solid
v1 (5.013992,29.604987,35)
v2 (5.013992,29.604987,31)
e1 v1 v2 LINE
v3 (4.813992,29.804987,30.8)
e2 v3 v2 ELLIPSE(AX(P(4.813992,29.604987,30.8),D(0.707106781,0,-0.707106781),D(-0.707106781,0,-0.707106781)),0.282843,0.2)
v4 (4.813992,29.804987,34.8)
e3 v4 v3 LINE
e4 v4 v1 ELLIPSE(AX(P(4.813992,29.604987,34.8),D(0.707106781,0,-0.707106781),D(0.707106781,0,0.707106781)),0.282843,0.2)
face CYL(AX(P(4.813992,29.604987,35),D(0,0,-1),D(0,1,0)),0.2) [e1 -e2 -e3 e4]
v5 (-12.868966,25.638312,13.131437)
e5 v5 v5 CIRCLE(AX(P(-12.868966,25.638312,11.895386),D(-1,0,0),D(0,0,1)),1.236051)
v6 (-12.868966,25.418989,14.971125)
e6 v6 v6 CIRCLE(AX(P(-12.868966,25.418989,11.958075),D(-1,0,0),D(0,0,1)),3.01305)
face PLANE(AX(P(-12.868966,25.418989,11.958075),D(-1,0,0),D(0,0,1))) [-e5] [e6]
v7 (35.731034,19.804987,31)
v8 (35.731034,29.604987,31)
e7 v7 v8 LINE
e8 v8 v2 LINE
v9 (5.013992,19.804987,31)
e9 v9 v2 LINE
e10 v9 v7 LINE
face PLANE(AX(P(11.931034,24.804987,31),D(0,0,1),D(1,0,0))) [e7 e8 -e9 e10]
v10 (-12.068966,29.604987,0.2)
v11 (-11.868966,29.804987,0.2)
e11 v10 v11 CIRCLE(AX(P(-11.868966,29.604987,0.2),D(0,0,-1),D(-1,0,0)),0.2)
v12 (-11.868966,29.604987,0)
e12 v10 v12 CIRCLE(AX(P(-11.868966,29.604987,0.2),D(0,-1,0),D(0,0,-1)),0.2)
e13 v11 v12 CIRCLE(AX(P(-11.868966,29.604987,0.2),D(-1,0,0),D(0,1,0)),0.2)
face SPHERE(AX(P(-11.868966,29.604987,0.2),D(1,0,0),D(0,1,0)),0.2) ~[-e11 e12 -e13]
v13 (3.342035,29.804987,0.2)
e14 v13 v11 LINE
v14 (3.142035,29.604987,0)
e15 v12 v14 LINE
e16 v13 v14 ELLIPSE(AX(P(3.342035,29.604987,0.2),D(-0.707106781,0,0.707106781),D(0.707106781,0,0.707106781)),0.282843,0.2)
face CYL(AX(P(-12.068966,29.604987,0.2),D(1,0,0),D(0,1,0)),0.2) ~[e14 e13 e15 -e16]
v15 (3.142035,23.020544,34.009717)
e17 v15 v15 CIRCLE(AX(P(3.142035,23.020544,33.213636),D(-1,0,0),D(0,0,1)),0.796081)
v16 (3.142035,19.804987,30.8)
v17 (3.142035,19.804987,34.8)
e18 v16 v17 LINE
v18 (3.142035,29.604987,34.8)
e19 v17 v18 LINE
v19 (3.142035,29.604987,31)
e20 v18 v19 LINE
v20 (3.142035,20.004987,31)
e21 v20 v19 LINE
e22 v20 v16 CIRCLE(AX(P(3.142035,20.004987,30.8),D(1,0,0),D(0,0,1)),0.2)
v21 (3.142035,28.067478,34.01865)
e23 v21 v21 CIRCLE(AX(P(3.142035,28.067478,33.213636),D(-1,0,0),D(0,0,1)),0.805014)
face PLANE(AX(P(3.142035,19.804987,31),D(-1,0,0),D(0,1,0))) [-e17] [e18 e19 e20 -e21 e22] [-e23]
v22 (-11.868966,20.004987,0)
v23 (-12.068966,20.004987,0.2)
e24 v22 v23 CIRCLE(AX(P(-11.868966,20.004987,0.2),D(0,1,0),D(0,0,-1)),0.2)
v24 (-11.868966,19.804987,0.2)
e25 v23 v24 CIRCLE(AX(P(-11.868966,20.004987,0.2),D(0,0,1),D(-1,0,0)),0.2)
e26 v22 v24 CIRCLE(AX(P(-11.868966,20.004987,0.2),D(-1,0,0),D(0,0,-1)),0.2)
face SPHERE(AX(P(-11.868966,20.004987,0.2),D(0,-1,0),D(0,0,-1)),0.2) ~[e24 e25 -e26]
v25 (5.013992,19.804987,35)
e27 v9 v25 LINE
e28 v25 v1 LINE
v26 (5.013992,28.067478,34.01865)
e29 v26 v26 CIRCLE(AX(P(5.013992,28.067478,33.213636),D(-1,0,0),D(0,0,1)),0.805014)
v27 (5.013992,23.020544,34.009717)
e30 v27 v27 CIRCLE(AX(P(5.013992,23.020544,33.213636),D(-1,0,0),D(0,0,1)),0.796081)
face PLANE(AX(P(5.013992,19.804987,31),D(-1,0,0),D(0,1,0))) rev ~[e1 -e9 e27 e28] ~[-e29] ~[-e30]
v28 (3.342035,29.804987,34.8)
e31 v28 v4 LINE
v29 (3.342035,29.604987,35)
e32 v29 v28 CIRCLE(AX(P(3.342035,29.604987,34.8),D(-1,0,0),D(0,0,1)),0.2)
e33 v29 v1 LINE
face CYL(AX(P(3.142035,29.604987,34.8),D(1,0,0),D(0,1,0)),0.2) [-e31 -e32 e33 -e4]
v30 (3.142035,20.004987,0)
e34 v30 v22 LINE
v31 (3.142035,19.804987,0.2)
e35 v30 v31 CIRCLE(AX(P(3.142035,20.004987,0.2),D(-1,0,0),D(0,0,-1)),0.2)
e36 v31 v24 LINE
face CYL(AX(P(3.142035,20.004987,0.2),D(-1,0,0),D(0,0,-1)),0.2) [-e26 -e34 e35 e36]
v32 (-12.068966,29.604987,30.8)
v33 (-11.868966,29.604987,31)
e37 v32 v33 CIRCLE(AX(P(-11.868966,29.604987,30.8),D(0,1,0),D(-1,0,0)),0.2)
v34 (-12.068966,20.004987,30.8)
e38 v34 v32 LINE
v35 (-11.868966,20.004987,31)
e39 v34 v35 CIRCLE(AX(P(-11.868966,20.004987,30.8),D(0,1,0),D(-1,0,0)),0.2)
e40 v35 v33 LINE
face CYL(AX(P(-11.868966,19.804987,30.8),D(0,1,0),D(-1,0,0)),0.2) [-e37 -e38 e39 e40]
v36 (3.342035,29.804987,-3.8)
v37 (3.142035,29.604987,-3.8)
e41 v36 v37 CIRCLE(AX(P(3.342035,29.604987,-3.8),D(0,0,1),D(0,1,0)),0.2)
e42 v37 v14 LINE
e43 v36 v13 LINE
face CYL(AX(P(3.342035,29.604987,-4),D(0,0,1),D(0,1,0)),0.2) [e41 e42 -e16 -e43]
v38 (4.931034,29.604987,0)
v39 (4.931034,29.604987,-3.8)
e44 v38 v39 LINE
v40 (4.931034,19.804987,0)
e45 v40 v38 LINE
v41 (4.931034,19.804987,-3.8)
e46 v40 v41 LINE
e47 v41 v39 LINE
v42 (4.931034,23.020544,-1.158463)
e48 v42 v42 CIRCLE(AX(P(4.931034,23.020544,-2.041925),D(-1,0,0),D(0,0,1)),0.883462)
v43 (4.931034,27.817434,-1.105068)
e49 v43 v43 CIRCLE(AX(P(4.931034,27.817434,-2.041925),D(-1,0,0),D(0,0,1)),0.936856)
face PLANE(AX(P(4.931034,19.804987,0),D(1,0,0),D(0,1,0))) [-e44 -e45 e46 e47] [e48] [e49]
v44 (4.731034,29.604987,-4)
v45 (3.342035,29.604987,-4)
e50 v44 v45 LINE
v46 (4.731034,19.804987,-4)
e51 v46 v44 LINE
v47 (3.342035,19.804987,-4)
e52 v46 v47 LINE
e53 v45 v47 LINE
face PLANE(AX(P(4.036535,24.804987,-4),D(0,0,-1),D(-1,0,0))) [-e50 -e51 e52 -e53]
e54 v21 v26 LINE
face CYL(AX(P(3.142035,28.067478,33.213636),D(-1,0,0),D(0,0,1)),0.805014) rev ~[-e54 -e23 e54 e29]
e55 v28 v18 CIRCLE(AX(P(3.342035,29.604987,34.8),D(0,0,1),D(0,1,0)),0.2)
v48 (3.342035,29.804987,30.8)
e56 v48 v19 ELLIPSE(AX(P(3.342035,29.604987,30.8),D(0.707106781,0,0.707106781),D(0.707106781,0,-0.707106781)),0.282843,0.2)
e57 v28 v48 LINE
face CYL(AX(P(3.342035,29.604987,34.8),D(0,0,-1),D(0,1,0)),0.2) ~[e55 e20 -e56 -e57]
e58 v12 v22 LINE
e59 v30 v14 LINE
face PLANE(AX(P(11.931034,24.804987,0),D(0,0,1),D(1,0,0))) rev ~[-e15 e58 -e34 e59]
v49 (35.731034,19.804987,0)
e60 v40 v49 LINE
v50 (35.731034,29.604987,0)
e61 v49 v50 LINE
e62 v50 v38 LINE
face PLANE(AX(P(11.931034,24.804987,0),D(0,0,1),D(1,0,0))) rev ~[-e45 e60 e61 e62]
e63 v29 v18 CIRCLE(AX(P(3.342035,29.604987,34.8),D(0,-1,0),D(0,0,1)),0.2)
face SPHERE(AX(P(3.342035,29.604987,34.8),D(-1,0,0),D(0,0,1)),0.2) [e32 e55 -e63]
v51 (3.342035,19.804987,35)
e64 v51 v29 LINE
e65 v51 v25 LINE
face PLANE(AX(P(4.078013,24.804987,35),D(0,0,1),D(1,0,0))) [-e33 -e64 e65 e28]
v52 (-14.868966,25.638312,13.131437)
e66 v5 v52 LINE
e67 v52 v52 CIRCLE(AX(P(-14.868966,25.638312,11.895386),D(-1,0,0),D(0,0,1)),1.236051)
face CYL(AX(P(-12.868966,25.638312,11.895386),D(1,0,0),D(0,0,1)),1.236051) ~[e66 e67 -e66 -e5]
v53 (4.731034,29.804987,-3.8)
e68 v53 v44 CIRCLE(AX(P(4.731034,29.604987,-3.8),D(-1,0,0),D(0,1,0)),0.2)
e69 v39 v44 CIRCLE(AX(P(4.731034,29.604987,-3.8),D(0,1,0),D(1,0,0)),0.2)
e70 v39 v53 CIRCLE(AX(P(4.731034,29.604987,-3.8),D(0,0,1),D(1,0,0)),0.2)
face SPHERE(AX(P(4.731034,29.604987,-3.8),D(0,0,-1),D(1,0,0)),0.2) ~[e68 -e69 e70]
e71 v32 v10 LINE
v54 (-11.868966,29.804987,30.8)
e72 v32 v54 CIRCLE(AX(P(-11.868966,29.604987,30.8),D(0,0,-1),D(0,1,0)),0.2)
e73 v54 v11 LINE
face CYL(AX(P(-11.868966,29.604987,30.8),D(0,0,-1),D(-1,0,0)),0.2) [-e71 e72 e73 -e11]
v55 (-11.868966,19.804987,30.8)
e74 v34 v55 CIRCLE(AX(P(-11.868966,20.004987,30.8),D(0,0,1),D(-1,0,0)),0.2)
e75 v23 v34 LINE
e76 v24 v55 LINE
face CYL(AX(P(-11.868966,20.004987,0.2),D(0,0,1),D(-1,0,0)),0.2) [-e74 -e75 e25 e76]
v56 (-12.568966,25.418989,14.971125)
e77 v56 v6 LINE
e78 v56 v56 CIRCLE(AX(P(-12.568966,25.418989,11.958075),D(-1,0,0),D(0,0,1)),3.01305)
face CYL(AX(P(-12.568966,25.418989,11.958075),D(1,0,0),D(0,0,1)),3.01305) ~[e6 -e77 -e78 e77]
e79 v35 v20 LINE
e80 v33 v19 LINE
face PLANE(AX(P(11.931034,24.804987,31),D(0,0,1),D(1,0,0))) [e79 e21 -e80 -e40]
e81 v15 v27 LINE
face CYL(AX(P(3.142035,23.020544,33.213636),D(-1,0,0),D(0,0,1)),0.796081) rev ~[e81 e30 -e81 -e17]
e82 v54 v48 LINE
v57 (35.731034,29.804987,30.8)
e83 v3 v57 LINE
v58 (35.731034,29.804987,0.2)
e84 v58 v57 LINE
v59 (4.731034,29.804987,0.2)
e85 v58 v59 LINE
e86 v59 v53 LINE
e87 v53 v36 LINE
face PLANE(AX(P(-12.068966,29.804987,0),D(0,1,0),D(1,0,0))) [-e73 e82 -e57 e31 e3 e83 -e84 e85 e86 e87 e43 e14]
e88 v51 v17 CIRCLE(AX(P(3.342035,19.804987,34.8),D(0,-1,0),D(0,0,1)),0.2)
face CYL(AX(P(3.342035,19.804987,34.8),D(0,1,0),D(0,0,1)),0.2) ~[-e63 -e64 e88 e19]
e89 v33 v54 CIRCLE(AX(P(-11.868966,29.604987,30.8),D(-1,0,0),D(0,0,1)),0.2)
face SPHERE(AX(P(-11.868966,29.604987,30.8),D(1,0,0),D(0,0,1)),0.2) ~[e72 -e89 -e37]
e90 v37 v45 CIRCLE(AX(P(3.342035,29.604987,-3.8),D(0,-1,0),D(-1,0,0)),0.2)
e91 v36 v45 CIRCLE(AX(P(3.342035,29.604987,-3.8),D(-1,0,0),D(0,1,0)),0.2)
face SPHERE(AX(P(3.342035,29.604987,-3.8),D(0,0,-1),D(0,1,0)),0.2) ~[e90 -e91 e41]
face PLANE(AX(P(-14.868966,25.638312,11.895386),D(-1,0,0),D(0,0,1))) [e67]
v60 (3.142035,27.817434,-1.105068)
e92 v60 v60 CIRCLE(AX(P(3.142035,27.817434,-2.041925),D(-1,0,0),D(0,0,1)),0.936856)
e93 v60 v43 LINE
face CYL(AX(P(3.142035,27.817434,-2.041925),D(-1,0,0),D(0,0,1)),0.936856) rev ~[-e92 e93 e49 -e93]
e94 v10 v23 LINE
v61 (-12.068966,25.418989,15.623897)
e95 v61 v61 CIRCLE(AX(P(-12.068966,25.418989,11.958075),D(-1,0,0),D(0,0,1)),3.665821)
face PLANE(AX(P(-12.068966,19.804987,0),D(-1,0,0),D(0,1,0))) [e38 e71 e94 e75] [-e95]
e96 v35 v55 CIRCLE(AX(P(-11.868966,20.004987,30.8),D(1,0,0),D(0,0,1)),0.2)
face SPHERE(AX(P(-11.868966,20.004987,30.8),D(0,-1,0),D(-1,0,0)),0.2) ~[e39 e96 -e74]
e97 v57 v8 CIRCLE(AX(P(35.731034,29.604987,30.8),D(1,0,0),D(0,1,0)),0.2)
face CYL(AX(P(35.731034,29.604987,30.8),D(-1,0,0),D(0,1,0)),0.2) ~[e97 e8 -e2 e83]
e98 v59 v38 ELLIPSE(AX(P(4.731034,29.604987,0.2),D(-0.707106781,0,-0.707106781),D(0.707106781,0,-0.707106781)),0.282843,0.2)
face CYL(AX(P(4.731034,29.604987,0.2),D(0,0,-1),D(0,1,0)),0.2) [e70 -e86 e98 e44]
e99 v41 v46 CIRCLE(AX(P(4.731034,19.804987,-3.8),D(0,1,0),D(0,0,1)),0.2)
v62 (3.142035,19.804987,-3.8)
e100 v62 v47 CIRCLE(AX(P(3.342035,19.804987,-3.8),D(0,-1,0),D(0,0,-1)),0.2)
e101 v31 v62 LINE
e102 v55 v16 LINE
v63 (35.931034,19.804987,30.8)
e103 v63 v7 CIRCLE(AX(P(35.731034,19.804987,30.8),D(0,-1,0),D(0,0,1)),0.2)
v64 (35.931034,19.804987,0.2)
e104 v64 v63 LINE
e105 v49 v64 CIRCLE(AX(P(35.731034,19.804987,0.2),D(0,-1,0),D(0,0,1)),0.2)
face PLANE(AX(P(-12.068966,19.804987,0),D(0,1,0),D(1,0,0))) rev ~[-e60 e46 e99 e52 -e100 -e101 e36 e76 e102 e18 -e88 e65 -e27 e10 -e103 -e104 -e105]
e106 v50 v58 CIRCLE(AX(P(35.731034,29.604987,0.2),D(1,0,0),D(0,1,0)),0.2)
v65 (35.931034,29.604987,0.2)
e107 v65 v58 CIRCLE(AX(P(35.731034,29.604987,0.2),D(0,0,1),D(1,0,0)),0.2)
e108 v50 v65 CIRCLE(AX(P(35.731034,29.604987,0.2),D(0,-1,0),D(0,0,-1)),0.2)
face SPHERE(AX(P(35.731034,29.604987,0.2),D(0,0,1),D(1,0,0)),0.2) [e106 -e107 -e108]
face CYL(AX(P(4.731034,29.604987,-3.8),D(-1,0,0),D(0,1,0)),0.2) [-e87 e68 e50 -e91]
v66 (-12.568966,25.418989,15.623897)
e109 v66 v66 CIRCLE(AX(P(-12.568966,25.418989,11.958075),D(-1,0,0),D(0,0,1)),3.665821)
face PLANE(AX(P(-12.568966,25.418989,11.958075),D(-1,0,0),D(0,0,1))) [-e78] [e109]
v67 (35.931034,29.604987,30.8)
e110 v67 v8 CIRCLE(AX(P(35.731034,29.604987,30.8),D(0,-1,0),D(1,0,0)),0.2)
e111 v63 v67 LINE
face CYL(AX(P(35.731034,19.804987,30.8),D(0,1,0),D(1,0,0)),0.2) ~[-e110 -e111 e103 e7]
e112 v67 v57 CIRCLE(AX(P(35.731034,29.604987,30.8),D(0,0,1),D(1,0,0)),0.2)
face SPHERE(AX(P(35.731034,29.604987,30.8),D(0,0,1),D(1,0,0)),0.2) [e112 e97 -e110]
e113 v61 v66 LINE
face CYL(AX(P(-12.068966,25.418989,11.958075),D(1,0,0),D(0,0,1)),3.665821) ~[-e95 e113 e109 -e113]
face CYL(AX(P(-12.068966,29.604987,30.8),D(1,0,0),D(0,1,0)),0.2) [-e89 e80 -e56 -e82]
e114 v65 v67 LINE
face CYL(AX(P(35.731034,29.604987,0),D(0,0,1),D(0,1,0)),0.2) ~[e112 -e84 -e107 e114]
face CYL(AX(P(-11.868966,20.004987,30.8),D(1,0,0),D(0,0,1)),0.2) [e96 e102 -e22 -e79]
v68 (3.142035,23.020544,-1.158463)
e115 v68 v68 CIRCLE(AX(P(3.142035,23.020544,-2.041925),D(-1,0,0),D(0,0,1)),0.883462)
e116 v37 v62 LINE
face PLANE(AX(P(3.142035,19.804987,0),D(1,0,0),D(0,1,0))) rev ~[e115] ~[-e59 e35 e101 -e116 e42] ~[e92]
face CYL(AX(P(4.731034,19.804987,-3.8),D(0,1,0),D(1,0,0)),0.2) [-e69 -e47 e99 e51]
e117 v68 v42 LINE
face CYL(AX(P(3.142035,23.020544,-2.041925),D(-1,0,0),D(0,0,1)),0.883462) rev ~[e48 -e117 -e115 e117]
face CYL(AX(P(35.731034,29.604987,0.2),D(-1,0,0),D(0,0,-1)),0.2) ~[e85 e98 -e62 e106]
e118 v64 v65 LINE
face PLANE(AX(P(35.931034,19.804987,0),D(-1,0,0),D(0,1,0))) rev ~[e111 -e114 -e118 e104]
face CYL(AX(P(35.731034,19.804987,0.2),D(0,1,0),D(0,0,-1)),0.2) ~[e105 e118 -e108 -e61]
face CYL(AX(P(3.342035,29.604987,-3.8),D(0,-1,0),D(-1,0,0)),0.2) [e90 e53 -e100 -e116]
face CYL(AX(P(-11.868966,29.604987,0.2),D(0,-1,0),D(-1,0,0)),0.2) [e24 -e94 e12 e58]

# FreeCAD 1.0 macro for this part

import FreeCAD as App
import Part
import Sketcher
Q = App.Units.Quantity


def edges_at(feature, points):
    """Names of the edges that pass closest to the given points."""
    edges = feature.Shape.Edges
    near = lambda p: min(range(len(edges)), key=lambda i: edges[i].distToShape(Part.Vertex(*p))[0])
    return sorted({f"Edge{near(p) + 1}" for p in points})


def add_polygon(sketch, points):
    """Adds a closed chain of lines whose ends are joined by coincident constraints."""
    first, n = sketch.GeometryCount, len(points)
    for a, b in zip(points, points[1:] + points[:1]):
        sketch.addGeometry(Part.LineSegment(App.Vector(*a, 0), App.Vector(*b, 0)), False)
    for i in range(n):
        sketch.addConstraint(Sketcher.Constraint("Coincident", first + i, 2, first + (i + 1) % n, 1))

doc = App.newDocument("Part")
body = doc.addObject("PartDesign::Body", "Body")

# Sketch on XY plane
sketch1 = doc.addObject("Sketcher::SketchObject", "Sketch")
body.addObject(sketch1)
sketch1.AttachmentSupport = (doc.XY_Plane, [""])
sketch1.MapMode = "FlatFace"
add_polygon(sketch1, [(-12, 30), (-12, 20), (36, 20), (36, 30)])  # lines 0-3
sketch1.addConstraint([
    Sketcher.Constraint("Vertical", 0),
    Sketcher.Constraint("Horizontal", 1),
    Sketcher.Constraint("Vertical", 2),
    Sketcher.Constraint("Horizontal", 3),
    Sketcher.Constraint("DistanceX", 1, 1, 1, 2, Q("48 mm")),
    Sketcher.Constraint("DistanceY", 0, 2, 0, 1, Q("10 mm")),
    Sketcher.Constraint("DistanceX", 0, 2, -1, 1, Q("12.068966 mm")),
    Sketcher.Constraint("DistanceY", -1, 1, 0, 2, Q("19.804987 mm")),
])
pad1 = doc.addObject("PartDesign::Pad", "Pad")
body.addObject(pad1)
pad1.Profile = sketch1
pad1.Length = 31

# Sketch on XY plane
sketch2 = doc.addObject("Sketcher::SketchObject", "Sketch001")
body.addObject(sketch2)
sketch2.AttachmentSupport = (doc.XY_Plane, [""])
sketch2.MapMode = "FlatFace"
add_polygon(sketch2, [(4.9, 29.8), (4.9, 19.8), (3.1, 19.8), (3.1, 29.8)])  # lines 0-3
sketch2.addConstraint([
    Sketcher.Constraint("Vertical", 0),
    Sketcher.Constraint("Horizontal", 1),
    Sketcher.Constraint("Vertical", 2),
    Sketcher.Constraint("Horizontal", 3),
    Sketcher.Constraint("DistanceY", 0, 2, 0, 1, Q("10 mm")),
    Sketcher.Constraint("DistanceX", 1, 2, 1, 1, Q("1.788999 mm")),
    Sketcher.Constraint("DistanceX", -1, 1, 0, 2, Q("4.931034 mm")),
    Sketcher.Constraint("DistanceY", -1, 1, 0, 2, Q("19.804987 mm")),
])
pad2 = doc.addObject("PartDesign::Pad", "Pad001")
body.addObject(pad2)
pad2.Profile = sketch2
pad2.Length = 4
pad2.Reversed = True

# Sketch on XY plane
sketch3 = doc.addObject("Sketcher::SketchObject", "Sketch002")
body.addObject(sketch3)
sketch3.AttachmentSupport = (doc.XY_Plane, [""])
sketch3.MapMode = "FlatFace"
sketch3.AttachmentOffset = App.Placement(App.Vector(0, 0, 31), App.Rotation())
add_polygon(sketch3, [(3.1, 29.8), (3.1, 19.8), (5, 19.8), (5, 29.8)])  # lines 0-3
sketch3.addConstraint([
    Sketcher.Constraint("Vertical", 0),
    Sketcher.Constraint("Horizontal", 1),
    Sketcher.Constraint("Vertical", 2),
    Sketcher.Constraint("Horizontal", 3),
    Sketcher.Constraint("DistanceY", 0, 2, 0, 1, Q("10 mm")),
    Sketcher.Constraint("DistanceX", 1, 1, 1, 2, Q("1.871957 mm")),
    Sketcher.Constraint("DistanceX", -1, 1, 1, 2, Q("5.013992 mm")),
    Sketcher.Constraint("DistanceY", -1, 1, 0, 2, Q("19.804987 mm")),
])
pad3 = doc.addObject("PartDesign::Pad", "Pad002")
body.addObject(pad3)
pad3.Profile = sketch3
pad3.Length = 4

# Sketch on YZ plane
sketch4 = doc.addObject("Sketcher::SketchObject", "Sketch003")
body.addObject(sketch4)
sketch4.AttachmentSupport = (doc.YZ_Plane, [""])
sketch4.MapMode = "FlatFace"
sketch4.AttachmentOffset = App.Placement(App.Vector(0, 0, -12.068966), App.Rotation())
sketch4.addGeometry(Part.Circle(App.Vector(25.4, 12, 0), App.Vector(0, 0, 1), 3.7), False)
sketch4.addConstraint([
    Sketcher.Constraint("Diameter", 0, Q("7.331642 mm")),
    Sketcher.Constraint("DistanceX", -1, 1, 0, 3, Q("25.418989 mm")),
    Sketcher.Constraint("DistanceY", -1, 1, 0, 3, Q("11.958075 mm")),
])
pad4 = doc.addObject("PartDesign::Pad", "Pad003")
body.addObject(pad4)
pad4.Profile = sketch4
pad4.Length = 0.5
pad4.Reversed = True

# Sketch on YZ plane
sketch5 = doc.addObject("Sketcher::SketchObject", "Sketch004")
body.addObject(sketch5)
sketch5.AttachmentSupport = (doc.YZ_Plane, [""])
sketch5.MapMode = "FlatFace"
sketch5.AttachmentOffset = App.Placement(App.Vector(0, 0, -12.568966), App.Rotation())
sketch5.addGeometry(Part.Circle(App.Vector(25.4, 12, 0), App.Vector(0, 0, 1), 3), False)
sketch5.addConstraint([
    Sketcher.Constraint("Diameter", 0, Q("6.0261 mm")),
    Sketcher.Constraint("DistanceX", -1, 1, 0, 3, Q("25.418989 mm")),
    Sketcher.Constraint("DistanceY", -1, 1, 0, 3, Q("11.958075 mm")),
])
pad5 = doc.addObject("PartDesign::Pad", "Pad004")
body.addObject(pad5)
pad5.Profile = sketch5
pad5.Length = 0.3
pad5.Reversed = True

# Sketch on YZ plane
sketch6 = doc.addObject("Sketcher::SketchObject", "Sketch005")
body.addObject(sketch6)
sketch6.AttachmentSupport = (doc.YZ_Plane, [""])
sketch6.MapMode = "FlatFace"
sketch6.AttachmentOffset = App.Placement(App.Vector(0, 0, -12.868966), App.Rotation())
sketch6.addGeometry(Part.Circle(App.Vector(25.6, 11.9, 0), App.Vector(0, 0, 1), 1.2), False)
sketch6.addConstraint([
    Sketcher.Constraint("Diameter", 0, Q("2.472101 mm")),
    Sketcher.Constraint("DistanceX", -1, 1, 0, 3, Q("25.638312 mm")),
    Sketcher.Constraint("DistanceY", -1, 1, 0, 3, Q("11.895386 mm")),
])
pad6 = doc.addObject("PartDesign::Pad", "Pad005")
body.addObject(pad6)
pad6.Profile = sketch6
pad6.Length = 2
pad6.Reversed = True

# Sketch on YZ plane
sketch7 = doc.addObject("Sketcher::SketchObject", "Sketch006")
body.addObject(sketch7)
sketch7.AttachmentSupport = (doc.YZ_Plane, [""])
sketch7.MapMode = "FlatFace"
sketch7.AttachmentOffset = App.Placement(App.Vector(0, 0, 3.142035), App.Rotation())
sketch7.addGeometry([
    Part.Circle(App.Vector(23, -2, 0), App.Vector(0, 0, 1), 0.9),
    Part.Circle(App.Vector(27.8, -2, 0), App.Vector(0, 0, 1), 0.9),
], False)
sketch7.addConstraint([
    Sketcher.Constraint("Horizontal", 0, 3, 1, 3),
    Sketcher.Constraint("Diameter", 0, Q("1.766923 mm")),
    Sketcher.Constraint("Diameter", 1, Q("1.873712 mm")),
    Sketcher.Constraint("DistanceX", 0, 3, 1, 3, Q("4.79689 mm")),
    Sketcher.Constraint("DistanceX", -1, 1, 0, 3, Q("23.020544 mm")),
    Sketcher.Constraint("DistanceY", 0, 3, -1, 1, Q("2.041925 mm")),
])
pocket1 = doc.addObject("PartDesign::Pocket", "Pocket")
body.addObject(pocket1)
pocket1.Profile = sketch7
pocket1.Length = 5
pocket1.Reversed = True

# Sketch on YZ plane
sketch8 = doc.addObject("Sketcher::SketchObject", "Sketch007")
body.addObject(sketch8)
sketch8.AttachmentSupport = (doc.YZ_Plane, [""])
sketch8.MapMode = "FlatFace"
sketch8.AttachmentOffset = App.Placement(App.Vector(0, 0, 3.142035), App.Rotation())
sketch8.addGeometry([
    Part.Circle(App.Vector(28.1, 33.2, 0), App.Vector(0, 0, 1), 0.8),
    Part.Circle(App.Vector(23, 33.2, 0), App.Vector(0, 0, 1), 0.8),
], False)
sketch8.addConstraint([
    Sketcher.Constraint("Horizontal", 0, 3, 1, 3),
    Sketcher.Constraint("Diameter", 0, Q("1.610028 mm")),
    Sketcher.Constraint("Diameter", 1, Q("1.592163 mm")),
    Sketcher.Constraint("DistanceX", -1, 1, 0, 3, Q("28.067478 mm")),
    Sketcher.Constraint("DistanceY", -1, 1, 0, 3, Q("33.213636 mm")),
    Sketcher.Constraint("DistanceX", -1, 1, 1, 3, Q("23.020544 mm")),
])
pocket2 = doc.addObject("PartDesign::Pocket", "Pocket001")
body.addObject(pocket2)
pocket2.Profile = sketch8
pocket2.Length = 5
pocket2.Reversed = True
doc.recompute()

fillet = doc.addObject("PartDesign::Fillet", "Fillet")
body.addObject(fillet)
fillet.Base = (pocket2, edges_at(pocket2, [(35.931, 29.805, 15.5)]))
fillet.Radius = 0.2
doc.recompute()

fillet2 = doc.addObject("PartDesign::Fillet", "Fillet001")
body.addObject(fillet2)
fillet2.Base = (fillet, edges_at(fillet, [
    (-4.463, 29.805, 0),
    (35.931, 24.705, 0),
    (20.331, 29.805, 0),
    (35.872, 29.746, 0),
]))
fillet2.Radius = 0.2
doc.recompute()

fillet3 = doc.addObject("PartDesign::Fillet", "Fillet002")
body.addObject(fillet3)
fillet3.Base = (fillet2, edges_at(fillet2, [(4.931, 29.805, -1.9), (3.142, 29.805, -1.9)]))
fillet3.Radius = 0.2
doc.recompute()

fillet4 = doc.addObject("PartDesign::Fillet", "Fillet003")
body.addObject(fillet4)
fillet4.Base = (fillet3, edges_at(fillet3, [
    (4.931, 24.705, -4),
    (4.037, 29.805, -4),
    (3.201, 29.746, -4),
    (4.872, 29.746, -4),
    (35.931, 24.705, 31),
    (3.142, 24.705, -4),
    (20.373, 29.805, 31),
    (35.872, 29.746, 31),
]))
fillet4.Radius = 0.2
doc.recompute()

fillet5 = doc.addObject("PartDesign::Fillet", "Fillet004")
body.addObject(fillet5)
fillet5.Base = (fillet4, edges_at(fillet4, [(4.078, 29.805, 35), (5.014, 29.805, 32.9)]))
fillet5.Radius = 0.2
doc.recompute()

fillet6 = doc.addObject("PartDesign::Fillet", "Fillet005")
body.addObject(fillet6)
fillet6.Base = (fillet5, edges_at(fillet5, [
    (3.142, 24.705, 35),
    (3.142, 29.805, 32.9),
    (3.142, 29.746, 34.941),
    (-4.463, 29.805, 31),
]))
fillet6.Radius = 0.2
doc.recompute()

fillet7 = doc.addObject("PartDesign::Fillet", "Fillet006")
body.addObject(fillet7)
fillet7.Base = (fillet6, edges_at(fillet6, [
    (-12.069, 24.705, 31),
    (-12.069, 29.805, 15.5),
    (-12.069, 29.746, 30.941),
    (-12.069, 24.705, 0),
    (-12.069, 29.746, 0.059),
]))
fillet7.Radius = 0.2
doc.recompute()

fillet8 = doc.addObject("PartDesign::Fillet", "Fillet007")
body.addObject(fillet8)
fillet8.Base = (fillet7, edges_at(fillet7, [
    (-12.069, 19.805, 15.5),
    (-4.363, 19.805, 31),
    (-4.363, 19.805, 0),
    (-12.01, 19.805, 30.941),
    (-12.01, 19.805, 0.059),
]))
fillet8.Radius = 0.2

doc.recompute()
